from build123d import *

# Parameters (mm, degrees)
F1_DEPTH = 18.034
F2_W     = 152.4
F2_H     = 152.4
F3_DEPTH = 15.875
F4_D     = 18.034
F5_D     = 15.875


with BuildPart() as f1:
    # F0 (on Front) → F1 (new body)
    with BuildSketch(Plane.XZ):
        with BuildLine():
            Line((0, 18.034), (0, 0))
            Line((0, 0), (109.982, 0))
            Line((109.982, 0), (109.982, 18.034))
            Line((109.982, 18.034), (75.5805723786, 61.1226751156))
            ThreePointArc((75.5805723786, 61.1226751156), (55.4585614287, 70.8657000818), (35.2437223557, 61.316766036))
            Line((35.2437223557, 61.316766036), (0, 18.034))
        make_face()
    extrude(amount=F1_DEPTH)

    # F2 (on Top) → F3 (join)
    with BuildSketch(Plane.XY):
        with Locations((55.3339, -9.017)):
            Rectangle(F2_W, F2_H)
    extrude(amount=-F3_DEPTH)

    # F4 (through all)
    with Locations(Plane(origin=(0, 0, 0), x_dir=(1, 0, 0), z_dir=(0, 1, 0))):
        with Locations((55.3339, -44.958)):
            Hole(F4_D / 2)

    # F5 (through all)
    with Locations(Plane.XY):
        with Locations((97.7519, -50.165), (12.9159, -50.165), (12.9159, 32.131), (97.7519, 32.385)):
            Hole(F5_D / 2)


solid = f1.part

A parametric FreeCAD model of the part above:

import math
import FreeCAD as App
import Part
import Sketcher
from FreeCAD import Vector
Q = App.Units.Quantity


def add_polygon(sketch, points):
    """Adds a closed chain of lines whose ends are joined by coincident constraints."""
    first, n = sketch.GeometryCount, len(points)
    for a, b in zip(points, points[1:] + points[:1]):
        sketch.addGeometry(Part.LineSegment(App.Vector(*a, 0), App.Vector(*b, 0)), False)
    for i in range(n):
        sketch.addConstraint(Sketcher.Constraint("Coincident", first + i, 2, first + (i + 1) % n, 1))

doc = App.newDocument("Part")
params = doc.addObject("Spreadsheet::Sheet", "Params")
for row, (alias, value) in enumerate([
    ("sketch1_radius", "1.02 in"),
    ("sketch1_width", "4.33 in"),
    ("sketch1_height", "0.71 in"),
    ("pad1_length", "0.71 in"),
    ("sketch2_width", "6 in"),
    ("pad2_length", "0.625 in"),
    ("sketch3_diameter", "0.71 in"),
    ("hole_diameter", "0.71 in"),
    ("sketch4_diameter", "0.625 in"),
    ("hole2_diameter", "0.625 in"),
], start=1):
    params.set(f"A{row}", alias)
    params.set(f"B{row}", "=" + value)
    params.setAlias(f"B{row}", alias)

body = doc.addObject("PartDesign::Body", "Body")

# Sketch on XZ plane
sketch1 = body.newObject("Sketcher::SketchObject", "Sketch")
sketch1.AttachmentSupport = (doc.getObject("XZ_Plane"), [""])
sketch1.MapMode = "FlatFace"
sketch1.addGeometry(Part.LineSegment(Vector(0, 18, 0), Vector(0, 0, 0)), False)
sketch1.addGeometry(Part.LineSegment(Vector(0, 0, 0), Vector(110, 0, 0)), False)
sketch1.addGeometry(Part.LineSegment(Vector(110, 0, 0), Vector(110, 18, 0)), False)
sketch1.addGeometry(Part.LineSegment(Vector(110, 18, 0), Vector(76, 61, 0)), False)
sketch1.addGeometry(Part.ArcOfCircle(Part.Circle(Vector(55, 45, 0), Vector(0, 0, 1), 26), math.radians(39), math.radians(141)), False)
sketch1.addGeometry(Part.LineSegment(Vector(35, 61, 0), Vector(0, 18, 0)), False)
sketch1.addConstraint(Sketcher.Constraint("Coincident", 0, 2, 1, 1))
sketch1.addConstraint(Sketcher.Constraint("Coincident", 1, 2, 2, 1))
sketch1.addConstraint(Sketcher.Constraint("Coincident", 2, 2, 3, 1))
sketch1.addConstraint(Sketcher.Constraint("Tangent", 3, 2, 4, 1))
sketch1.addConstraint(Sketcher.Constraint("Tangent", 4, 2, 5, 1))
sketch1.addConstraint(Sketcher.Constraint("Coincident", 5, 2, 0, 1))
sketch1.addConstraint(Sketcher.Constraint("Vertical", 0))
sketch1.addConstraint(Sketcher.Constraint("Horizontal", 1))
sketch1.addConstraint(Sketcher.Constraint("Vertical", 2))
sketch1.addConstraint(Sketcher.Constraint("Coincident", 0, 2, -1, 1))
sketch1.addConstraint(Sketcher.Constraint("Horizontal", 2, 2, 5, 2))
sketch1.addConstraint(Sketcher.Constraint("Radius", 4, Q("1.02 in")))
sketch1.addConstraint(Sketcher.Constraint("DistanceX", 1, 1, 1, 2, Q("4.33 in")))
sketch1.addConstraint(Sketcher.Constraint("DistanceY", 0, 2, 0, 1, Q("0.71 in")))
sketch1.addConstraint(Sketcher.Constraint("DistanceY", -1, 1, 4, 3, Q("1.77 in")))
sketch1.addConstraint(Sketcher.Constraint("DistanceX", -1, 1, 4, 3, Q("2.1785 in")))
sketch1.setExpression("Constraints[11]", "Params.sketch1_radius")
sketch1.setExpression("Constraints[12]", "Params.sketch1_width")
sketch1.setExpression("Constraints[13]", "Params.sketch1_height")
pad1 = body.newObject("PartDesign::Pad", "Pad")
pad1.Profile = sketch1
pad1.setExpression("Length", "Params.pad1_length")

# Sketch on XY plane
sketch2 = body.newObject("Sketcher::SketchObject", "Sketch001")
sketch2.AttachmentSupport = (doc.getObject("XY_Plane"), [""])
sketch2.MapMode = "FlatFace"
add_polygon(sketch2, [(-21, 67), (-21, -85), (132, -85), (132, 67)])  # lines 0-3
sketch2.addConstraint(Sketcher.Constraint("Vertical", 0))
sketch2.addConstraint(Sketcher.Constraint("Horizontal", 1))
sketch2.addConstraint(Sketcher.Constraint("Vertical", 2))
sketch2.addConstraint(Sketcher.Constraint("Horizontal", 3))
sketch2.addConstraint(Sketcher.Constraint("Equal", 3, 0))
sketch2.addConstraint(Sketcher.Constraint("DistanceX", 1, 1, 1, 2, Q("6 in")))
sketch2.addConstraint(Sketcher.Constraint("DistanceY", 0, 2, -1, 1, Q("3.355 in")))
sketch2.addConstraint(Sketcher.Constraint("DistanceX", 0, 2, -1, 1, Q("0.8215 in")))
sketch2.setExpression("Constraints[9]", "Params.sketch2_width")
pad2 = body.newObject("PartDesign::Pad", "Pad001")
pad2.Profile = sketch2
pad2.setExpression("Length", "Params.pad2_length")
pad2.Reversed = True

# Sketch on XZ plane
sketch3 = body.newObject("Sketcher::SketchObject", "Sketch002")
sketch3.AttachmentSupport = (doc.getObject("XZ_Plane"), [""])
sketch3.MapMode = "FlatFace"
sketch3.addGeometry(Part.Circle(Vector(55, 45, 0), Vector(0, 0, 1), 9), False)
sketch3.addConstraint(Sketcher.Constraint("Diameter", 0, Q("0.71 in")))
sketch3.addConstraint(Sketcher.Constraint("DistanceY", -1, 1, 0, 3, Q("1.77 in")))
sketch3.addConstraint(Sketcher.Constraint("DistanceX", -1, 1, 0, 3, Q("2.1785 in")))
sketch3.setExpression("Constraints[0]", "Params.sketch3_diameter")
doc.recompute()
hole = body.newObject("PartDesign::Hole", "Hole")
hole.Profile = sketch3
hole.ThreadType = "None"
hole.setExpression("Diameter", "Params.hole_diameter")
hole.DepthType = "ThroughAll"
hole.Reversed = True

# Sketch on XY plane
sketch4 = body.newObject("Sketcher::SketchObject", "Sketch003")
sketch4.AttachmentSupport = (doc.getObject("XY_Plane"), [""])
sketch4.MapMode = "FlatFace"
sketch4.addGeometry(Part.Circle(Vector(98, -50, 0), Vector(0, 0, 1), 8), False)
sketch4.addGeometry(Part.Circle(Vector(13, -50, 0), Vector(0, 0, 1), 8), False)
sketch4.addGeometry(Part.Circle(Vector(13, 32, 0), Vector(0, 0, 1), 8), False)
sketch4.addGeometry(Part.Circle(Vector(98, 32, 0), Vector(0, 0, 1), 8), False)
sketch4.addConstraint(Sketcher.Constraint("Equal", 0, 1))
sketch4.addConstraint(Sketcher.Constraint("Equal", 1, 2))
sketch4.addConstraint(Sketcher.Constraint("Equal", 2, 3))
sketch4.addConstraint(Sketcher.Constraint("Horizontal", 0, 3, 1, 3))
sketch4.addConstraint(Sketcher.Constraint("Vertical", 1, 3, 2, 3))
sketch4.addConstraint(Sketcher.Constraint("Vertical", 0, 3, 3, 3))
sketch4.addConstraint(Sketcher.Constraint("Diameter", 0, Q("0.625 in")))
sketch4.addConstraint(Sketcher.Constraint("DistanceX", 1, 3, 0, 3, Q("3.34 in")))
sketch4.addConstraint(Sketcher.Constraint("DistanceY", 1, 3, 2, 3, Q("3.24 in")))
sketch4.addConstraint(Sketcher.Constraint("DistanceY", 0, 3, 3, 3, Q("3.25 in")))
sketch4.addConstraint(Sketcher.Constraint("DistanceY", 0, 3, -1, 1, Q("1.975 in")))
sketch4.addConstraint(Sketcher.Constraint("DistanceX", -1, 1, 0, 3, Q("3.8485 in")))
sketch4.setExpression("Constraints[6]", "Params.sketch4_diameter")
doc.recompute()
hole2 = body.newObject("PartDesign::Hole", "Hole001")
hole2.Profile = sketch4
hole2.ThreadType = "None"
hole2.setExpression("Diameter", "Params.hole2_diameter")
hole2.DepthType = "ThroughAll"

doc.recompute()
